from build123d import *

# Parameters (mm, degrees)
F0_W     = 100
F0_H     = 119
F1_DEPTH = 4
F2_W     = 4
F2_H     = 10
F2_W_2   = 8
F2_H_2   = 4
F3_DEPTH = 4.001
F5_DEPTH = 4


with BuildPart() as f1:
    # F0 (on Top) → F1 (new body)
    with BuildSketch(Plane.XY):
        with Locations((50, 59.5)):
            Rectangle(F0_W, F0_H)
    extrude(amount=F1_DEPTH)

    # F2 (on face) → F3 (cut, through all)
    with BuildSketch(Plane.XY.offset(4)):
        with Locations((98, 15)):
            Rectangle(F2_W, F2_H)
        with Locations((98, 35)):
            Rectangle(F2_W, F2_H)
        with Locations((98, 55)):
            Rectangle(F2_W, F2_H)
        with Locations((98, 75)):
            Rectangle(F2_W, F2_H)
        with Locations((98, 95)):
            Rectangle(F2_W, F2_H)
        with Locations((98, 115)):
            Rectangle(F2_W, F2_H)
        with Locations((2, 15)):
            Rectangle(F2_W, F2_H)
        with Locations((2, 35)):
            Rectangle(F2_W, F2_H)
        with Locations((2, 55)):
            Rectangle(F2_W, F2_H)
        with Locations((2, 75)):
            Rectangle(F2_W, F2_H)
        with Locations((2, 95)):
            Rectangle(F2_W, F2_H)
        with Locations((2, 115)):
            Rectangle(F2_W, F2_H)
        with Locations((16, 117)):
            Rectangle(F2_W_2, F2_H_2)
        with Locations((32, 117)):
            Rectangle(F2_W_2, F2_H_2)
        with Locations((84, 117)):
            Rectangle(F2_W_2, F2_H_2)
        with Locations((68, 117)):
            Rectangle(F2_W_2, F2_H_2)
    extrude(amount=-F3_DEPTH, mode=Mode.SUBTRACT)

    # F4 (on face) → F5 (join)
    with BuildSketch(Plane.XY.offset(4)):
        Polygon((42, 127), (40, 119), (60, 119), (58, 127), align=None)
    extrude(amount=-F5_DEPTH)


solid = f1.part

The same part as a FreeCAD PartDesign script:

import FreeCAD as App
import Part
import Sketcher

V = App.Vector
Q = App.Units.Quantity


def add_polygon(sketch, points):
    """Adds a closed chain of lines whose ends are joined by coincident constraints."""
    first, n = sketch.GeometryCount, len(points)
    for a, b in zip(points, points[1:] + points[:1]):
        sketch.addGeometry(Part.LineSegment(App.Vector(*a, 0), App.Vector(*b, 0)), False)
    for i in range(n):
        sketch.addConstraint(Sketcher.Constraint("Coincident", first + i, 2, first + (i + 1) % n, 1))

doc = App.newDocument("Part")
params = doc.addObject("Spreadsheet::Sheet", "Params")
for row, (alias, value) in enumerate([
    ("sketch1_width", "100 mm"),
    ("sketch1_height", "119 mm"),
    ("pad1_length", "4 mm"),
    ("sketch2_width", "4 mm"),
    ("sketch2_width2", "8 mm"),
    ("sketch2_height", "10 mm"),
    ("sketch3_width", "20 mm"),
    ("sketch3_width2", "16 mm"),
    ("pad2_length", "4 mm"),
], start=1):
    params.set(f"A{row}", alias)
    params.set(f"B{row}", "=" + value)
    params.setAlias(f"B{row}", alias)

body = doc.addObject("PartDesign::Body", "Body")

# Sketch on XY plane
sketch1 = body.newObject("Sketcher::SketchObject", "Sketch")
sketch1.AttachmentSupport = (doc.getObject("XY_Plane"), [""])
sketch1.MapMode = "FlatFace"
add_polygon(sketch1, [(0, 119), (0, 0), (100, 0), (100, 119)])  # lines 0-3
sketch1.addConstraint([
    Sketcher.Constraint("Vertical", 0),
    Sketcher.Constraint("Horizontal", 1),
    Sketcher.Constraint("Vertical", 2),
    Sketcher.Constraint("Horizontal", 3),
    Sketcher.Constraint("Coincident", 0, 2, -1, 1),
    Sketcher.Constraint("DistanceX", 1, 1, 1, 2, Q("100 mm")),
    Sketcher.Constraint("DistanceY", 0, 2, 0, 1, Q("119 mm")),
])
sketch1.setExpression("Constraints[9]", "Params.sketch1_width")
sketch1.setExpression("Constraints[10]", "Params.sketch1_height")
pad1 = body.newObject("PartDesign::Pad", "Pad")
pad1.Profile = sketch1
pad1.setExpression("Length", "Params.pad1_length")

# Sketch on XY plane
sketch2 = body.newObject("Sketcher::SketchObject", "Sketch001")
sketch2.AttachmentSupport = (doc.getObject("XY_Plane"), [""])
sketch2.MapMode = "FlatFace"
sketch2.AttachmentOffset = App.Placement(V(0, 0, 4), App.Rotation())
add_polygon(sketch2, [(96, 20), (96, 10), (100, 10), (100, 20)])  # lines 0-3
add_polygon(sketch2, [(96, 40), (96, 30), (100, 30), (100, 40)])  # lines 4-7
add_polygon(sketch2, [(96, 60), (96, 50), (100, 50), (100, 60)])  # lines 8-11
add_polygon(sketch2, [(96, 80), (96, 70), (100, 70), (100, 80)])  # lines 12-15
add_polygon(sketch2, [(96, 100), (96, 90), (100, 90), (100, 100)])  # lines 16-19
add_polygon(sketch2, [(96, 120), (96, 110), (100, 110), (100, 120)])  # lines 20-23
add_polygon(sketch2, [(0, 20), (0, 10), (4, 10), (4, 20)])  # lines 24-27
add_polygon(sketch2, [(0, 40), (0, 30), (4, 30), (4, 40)])  # lines 28-31
add_polygon(sketch2, [(0, 60), (0, 50), (4, 50), (4, 60)])  # lines 32-35
add_polygon(sketch2, [(0, 80), (0, 70), (4, 70), (4, 80)])  # lines 36-39
add_polygon(sketch2, [(0, 100), (0, 90), (4, 90), (4, 100)])  # lines 40-43
add_polygon(sketch2, [(0, 120), (0, 110), (4, 110), (4, 120)])  # lines 44-47
add_polygon(sketch2, [(12, 119), (12, 115), (20, 115), (20, 119)])  # lines 48-51
add_polygon(sketch2, [(28, 119), (28, 115), (36, 115), (36, 119)])  # lines 52-55
add_polygon(sketch2, [(80, 119), (80, 115), (88, 115), (88, 119)])  # lines 56-59
add_polygon(sketch2, [(64, 119), (64, 115), (72, 115), (72, 119)])  # lines 60-63
sketch2.addConstraint([
    Sketcher.Constraint("Vertical", 0),
    Sketcher.Constraint("Horizontal", 1),
    Sketcher.Constraint("Vertical", 2),
    Sketcher.Constraint("Horizontal", 3),
    Sketcher.Constraint("Vertical", 4),
    Sketcher.Constraint("Horizontal", 5),
    Sketcher.Constraint("Vertical", 6),
    Sketcher.Constraint("Horizontal", 7),
    Sketcher.Constraint("Vertical", 8),
    Sketcher.Constraint("Horizontal", 9),
    Sketcher.Constraint("Vertical", 10),
    Sketcher.Constraint("Horizontal", 11),
    Sketcher.Constraint("Vertical", 12),
    Sketcher.Constraint("Horizontal", 13),
    Sketcher.Constraint("Vertical", 14),
    Sketcher.Constraint("Horizontal", 15),
    Sketcher.Constraint("Vertical", 16),
    Sketcher.Constraint("Horizontal", 17),
    Sketcher.Constraint("Vertical", 18),
    Sketcher.Constraint("Horizontal", 19),
    Sketcher.Constraint("Vertical", 20),
    Sketcher.Constraint("Horizontal", 21),
    Sketcher.Constraint("Vertical", 22),
    Sketcher.Constraint("Horizontal", 23),
    Sketcher.Constraint("Vertical", 24),
    Sketcher.Constraint("Horizontal", 25),
    Sketcher.Constraint("Vertical", 26),
    Sketcher.Constraint("Horizontal", 27),
    Sketcher.Constraint("Vertical", 28),
    Sketcher.Constraint("Horizontal", 29),
    Sketcher.Constraint("Vertical", 30),
    Sketcher.Constraint("Horizontal", 31),
    Sketcher.Constraint("Vertical", 32),
    Sketcher.Constraint("Horizontal", 33),
    Sketcher.Constraint("Vertical", 34),
    Sketcher.Constraint("Horizontal", 35),
    Sketcher.Constraint("Vertical", 36),
    Sketcher.Constraint("Horizontal", 37),
    Sketcher.Constraint("Vertical", 38),
    Sketcher.Constraint("Horizontal", 39),
    Sketcher.Constraint("Vertical", 40),
    Sketcher.Constraint("Horizontal", 41),
    Sketcher.Constraint("Vertical", 42),
    Sketcher.Constraint("Horizontal", 43),
    Sketcher.Constraint("Vertical", 44),
    Sketcher.Constraint("Horizontal", 45),
    Sketcher.Constraint("Vertical", 46),
    Sketcher.Constraint("Horizontal", 47),
    Sketcher.Constraint("Vertical", 48),
    Sketcher.Constraint("Horizontal", 49),
    Sketcher.Constraint("Vertical", 50),
    Sketcher.Constraint("Horizontal", 51),
    Sketcher.Constraint("Vertical", 52),
    Sketcher.Constraint("Horizontal", 53),
    Sketcher.Constraint("Vertical", 54),
    Sketcher.Constraint("Horizontal", 55),
    Sketcher.Constraint("Vertical", 56),
    Sketcher.Constraint("Horizontal", 57),
    Sketcher.Constraint("Vertical", 58),
    Sketcher.Constraint("Horizontal", 59),
    Sketcher.Constraint("Vertical", 60),
    Sketcher.Constraint("Horizontal", 61),
    Sketcher.Constraint("Vertical", 62),
    Sketcher.Constraint("Horizontal", 63),
    Sketcher.Constraint("PointOnObject", 24, 2, -2),
    Sketcher.Constraint("PointOnObject", 28, 2, -2),
    Sketcher.Constraint("PointOnObject", 32, 2, -2),
    Sketcher.Constraint("PointOnObject", 36, 2, -2),
    Sketcher.Constraint("PointOnObject", 40, 2, -2),
    Sketcher.Constraint("PointOnObject", 44, 2, -2),
    Sketcher.Constraint("Horizontal", 1, 2, 24, 2),
    Sketcher.Constraint("Horizontal", 3, 2, 26, 2),
    Sketcher.Constraint("Horizontal", 5, 2, 28, 2),
    Sketcher.Constraint("Horizontal", 7, 2, 30, 2),
    Sketcher.Constraint("Horizontal", 9, 2, 32, 2),
    Sketcher.Constraint("Horizontal", 11, 2, 34, 2),
    Sketcher.Constraint("Horizontal", 13, 2, 36, 2),
    Sketcher.Constraint("Horizontal", 15, 2, 38, 2),
    Sketcher.Constraint("Horizontal", 17, 2, 40, 2),
    Sketcher.Constraint("Horizontal", 19, 2, 42, 2),
    Sketcher.Constraint("Horizontal", 21, 2, 44, 2),
    Sketcher.Constraint("Horizontal", 23, 2, 46, 2),
    Sketcher.Constraint("Horizontal", 49, 2, 52, 2),
    Sketcher.Constraint("Horizontal", 51, 2, 54, 2),
    Sketcher.Constraint("Horizontal", 53, 2, 56, 2),
    Sketcher.Constraint("Horizontal", 55, 2, 58, 2),
    Sketcher.Constraint("Horizontal", 57, 2, 60, 2),
    Sketcher.Constraint("Horizontal", 59, 2, 62, 2),
    Sketcher.Constraint("Vertical", 3, 2, 4, 2),
    Sketcher.Constraint("Vertical", 2, 2, 5, 2),
    Sketcher.Constraint("Vertical", 7, 2, 8, 2),
    Sketcher.Constraint("Vertical", 6, 2, 9, 2),
    Sketcher.Constraint("Vertical", 11, 2, 12, 2),
    Sketcher.Constraint("Vertical", 10, 2, 13, 2),
    Sketcher.Constraint("Vertical", 15, 2, 16, 2),
    Sketcher.Constraint("Vertical", 14, 2, 17, 2),
    Sketcher.Constraint("Vertical", 19, 2, 20, 2),
    Sketcher.Constraint("Vertical", 18, 2, 21, 2),
    Sketcher.Constraint("Vertical", 26, 2, 29, 2),
    Sketcher.Constraint("Vertical", 30, 2, 33, 2),
    Sketcher.Constraint("Vertical", 34, 2, 37, 2),
    Sketcher.Constraint("Vertical", 38, 2, 41, 2),
    Sketcher.Constraint("Vertical", 42, 2, 45, 2),
    Sketcher.Constraint("Equal", 23, 25),
    Sketcher.Constraint("Equal", 51, 53),
    Sketcher.Constraint("Equal", 55, 57),
    Sketcher.Constraint("Equal", 59, 61),
    Sketcher.Constraint("Equal", 2, 4),
    Sketcher.Constraint("Equal", 6, 8),
    Sketcher.Constraint("Equal", 10, 12),
    Sketcher.Constraint("Equal", 14, 16),
    Sketcher.Constraint("Equal", 18, 20),
    Sketcher.Constraint("Equal", 47, 48),
    Sketcher.Constraint("DistanceX", 1, 1, 1, 2, Q("4 mm")),
    Sketcher.Constraint("DistanceX", 49, 1, 49, 2, Q("8 mm")),
    Sketcher.Constraint("DistanceY", 0, 2, 0, 1, Q("10 mm")),
    Sketcher.Constraint("DistanceX", -1, 1, 0, 2, Q("96 mm")),
    Sketcher.Constraint("DistanceY", -1, 1, 0, 2, Q("10 mm")),
    Sketcher.Constraint("DistanceY", -1, 1, 4, 2, Q("30 mm")),
    Sketcher.Constraint("DistanceY", -1, 1, 8, 2, Q("50 mm")),
    Sketcher.Constraint("DistanceY", -1, 1, 12, 2, Q("70 mm")),
    Sketcher.Constraint("DistanceY", -1, 1, 16, 2, Q("90 mm")),
    Sketcher.Constraint("DistanceY", -1, 1, 20, 2, Q("110 mm")),
    Sketcher.Constraint("DistanceX", -1, 1, 48, 2, Q("12 mm")),
    Sketcher.Constraint("DistanceY", -1, 1, 48, 2, Q("115 mm")),
    Sketcher.Constraint("DistanceX", -1, 1, 52, 2, Q("28 mm")),
    Sketcher.Constraint("DistanceX", -1, 1, 56, 2, Q("80 mm")),
    Sketcher.Constraint("DistanceX", -1, 1, 60, 2, Q("64 mm")),
])
sketch2.setExpression("Constraints[177]", "Params.sketch2_width")
sketch2.setExpression("Constraints[178]", "Params.sketch2_width2")
sketch2.setExpression("Constraints[179]", "Params.sketch2_height")
pocket1 = body.newObject("PartDesign::Pocket", "Pocket")
pocket1.Profile = sketch2
pocket1.Type = "ThroughAll"

# Sketch on XY plane
sketch3 = body.newObject("Sketcher::SketchObject", "Sketch002")
sketch3.AttachmentSupport = (doc.getObject("XY_Plane"), [""])
sketch3.MapMode = "FlatFace"
sketch3.AttachmentOffset = App.Placement(V(0, 0, 4), App.Rotation())
add_polygon(sketch3, [(42, 127), (40, 119), (60, 119), (58, 127)])  # lines 0-3
sketch3.addConstraint([
    Sketcher.Constraint("Horizontal", 1),
    Sketcher.Constraint("Horizontal", 3),
    Sketcher.Constraint("Equal", 0, 2),
    Sketcher.Constraint("DistanceX", 1, 1, 1, 2, Q("20 mm")),
    Sketcher.Constraint("DistanceX", 3, 2, 3, 1, Q("16 mm")),
    Sketcher.Constraint("DistanceX", -1, 1, 0, 2, Q("40 mm")),
    Sketcher.Constraint("DistanceY", -1, 1, 0, 2, Q("119 mm")),
    Sketcher.Constraint("DistanceY", -1, 1, 2, 2, Q("127 mm")),
])
sketch3.setExpression("Constraints[7]", "Params.sketch3_width")
sketch3.setExpression("Constraints[8]", "Params.sketch3_width2")
pad2 = body.newObject("PartDesign::Pad", "Pad001")
pad2.Profile = sketch3
pad2.setExpression("Length", "Params.pad2_length")
pad2.Reversed = True

doc.recompute()
